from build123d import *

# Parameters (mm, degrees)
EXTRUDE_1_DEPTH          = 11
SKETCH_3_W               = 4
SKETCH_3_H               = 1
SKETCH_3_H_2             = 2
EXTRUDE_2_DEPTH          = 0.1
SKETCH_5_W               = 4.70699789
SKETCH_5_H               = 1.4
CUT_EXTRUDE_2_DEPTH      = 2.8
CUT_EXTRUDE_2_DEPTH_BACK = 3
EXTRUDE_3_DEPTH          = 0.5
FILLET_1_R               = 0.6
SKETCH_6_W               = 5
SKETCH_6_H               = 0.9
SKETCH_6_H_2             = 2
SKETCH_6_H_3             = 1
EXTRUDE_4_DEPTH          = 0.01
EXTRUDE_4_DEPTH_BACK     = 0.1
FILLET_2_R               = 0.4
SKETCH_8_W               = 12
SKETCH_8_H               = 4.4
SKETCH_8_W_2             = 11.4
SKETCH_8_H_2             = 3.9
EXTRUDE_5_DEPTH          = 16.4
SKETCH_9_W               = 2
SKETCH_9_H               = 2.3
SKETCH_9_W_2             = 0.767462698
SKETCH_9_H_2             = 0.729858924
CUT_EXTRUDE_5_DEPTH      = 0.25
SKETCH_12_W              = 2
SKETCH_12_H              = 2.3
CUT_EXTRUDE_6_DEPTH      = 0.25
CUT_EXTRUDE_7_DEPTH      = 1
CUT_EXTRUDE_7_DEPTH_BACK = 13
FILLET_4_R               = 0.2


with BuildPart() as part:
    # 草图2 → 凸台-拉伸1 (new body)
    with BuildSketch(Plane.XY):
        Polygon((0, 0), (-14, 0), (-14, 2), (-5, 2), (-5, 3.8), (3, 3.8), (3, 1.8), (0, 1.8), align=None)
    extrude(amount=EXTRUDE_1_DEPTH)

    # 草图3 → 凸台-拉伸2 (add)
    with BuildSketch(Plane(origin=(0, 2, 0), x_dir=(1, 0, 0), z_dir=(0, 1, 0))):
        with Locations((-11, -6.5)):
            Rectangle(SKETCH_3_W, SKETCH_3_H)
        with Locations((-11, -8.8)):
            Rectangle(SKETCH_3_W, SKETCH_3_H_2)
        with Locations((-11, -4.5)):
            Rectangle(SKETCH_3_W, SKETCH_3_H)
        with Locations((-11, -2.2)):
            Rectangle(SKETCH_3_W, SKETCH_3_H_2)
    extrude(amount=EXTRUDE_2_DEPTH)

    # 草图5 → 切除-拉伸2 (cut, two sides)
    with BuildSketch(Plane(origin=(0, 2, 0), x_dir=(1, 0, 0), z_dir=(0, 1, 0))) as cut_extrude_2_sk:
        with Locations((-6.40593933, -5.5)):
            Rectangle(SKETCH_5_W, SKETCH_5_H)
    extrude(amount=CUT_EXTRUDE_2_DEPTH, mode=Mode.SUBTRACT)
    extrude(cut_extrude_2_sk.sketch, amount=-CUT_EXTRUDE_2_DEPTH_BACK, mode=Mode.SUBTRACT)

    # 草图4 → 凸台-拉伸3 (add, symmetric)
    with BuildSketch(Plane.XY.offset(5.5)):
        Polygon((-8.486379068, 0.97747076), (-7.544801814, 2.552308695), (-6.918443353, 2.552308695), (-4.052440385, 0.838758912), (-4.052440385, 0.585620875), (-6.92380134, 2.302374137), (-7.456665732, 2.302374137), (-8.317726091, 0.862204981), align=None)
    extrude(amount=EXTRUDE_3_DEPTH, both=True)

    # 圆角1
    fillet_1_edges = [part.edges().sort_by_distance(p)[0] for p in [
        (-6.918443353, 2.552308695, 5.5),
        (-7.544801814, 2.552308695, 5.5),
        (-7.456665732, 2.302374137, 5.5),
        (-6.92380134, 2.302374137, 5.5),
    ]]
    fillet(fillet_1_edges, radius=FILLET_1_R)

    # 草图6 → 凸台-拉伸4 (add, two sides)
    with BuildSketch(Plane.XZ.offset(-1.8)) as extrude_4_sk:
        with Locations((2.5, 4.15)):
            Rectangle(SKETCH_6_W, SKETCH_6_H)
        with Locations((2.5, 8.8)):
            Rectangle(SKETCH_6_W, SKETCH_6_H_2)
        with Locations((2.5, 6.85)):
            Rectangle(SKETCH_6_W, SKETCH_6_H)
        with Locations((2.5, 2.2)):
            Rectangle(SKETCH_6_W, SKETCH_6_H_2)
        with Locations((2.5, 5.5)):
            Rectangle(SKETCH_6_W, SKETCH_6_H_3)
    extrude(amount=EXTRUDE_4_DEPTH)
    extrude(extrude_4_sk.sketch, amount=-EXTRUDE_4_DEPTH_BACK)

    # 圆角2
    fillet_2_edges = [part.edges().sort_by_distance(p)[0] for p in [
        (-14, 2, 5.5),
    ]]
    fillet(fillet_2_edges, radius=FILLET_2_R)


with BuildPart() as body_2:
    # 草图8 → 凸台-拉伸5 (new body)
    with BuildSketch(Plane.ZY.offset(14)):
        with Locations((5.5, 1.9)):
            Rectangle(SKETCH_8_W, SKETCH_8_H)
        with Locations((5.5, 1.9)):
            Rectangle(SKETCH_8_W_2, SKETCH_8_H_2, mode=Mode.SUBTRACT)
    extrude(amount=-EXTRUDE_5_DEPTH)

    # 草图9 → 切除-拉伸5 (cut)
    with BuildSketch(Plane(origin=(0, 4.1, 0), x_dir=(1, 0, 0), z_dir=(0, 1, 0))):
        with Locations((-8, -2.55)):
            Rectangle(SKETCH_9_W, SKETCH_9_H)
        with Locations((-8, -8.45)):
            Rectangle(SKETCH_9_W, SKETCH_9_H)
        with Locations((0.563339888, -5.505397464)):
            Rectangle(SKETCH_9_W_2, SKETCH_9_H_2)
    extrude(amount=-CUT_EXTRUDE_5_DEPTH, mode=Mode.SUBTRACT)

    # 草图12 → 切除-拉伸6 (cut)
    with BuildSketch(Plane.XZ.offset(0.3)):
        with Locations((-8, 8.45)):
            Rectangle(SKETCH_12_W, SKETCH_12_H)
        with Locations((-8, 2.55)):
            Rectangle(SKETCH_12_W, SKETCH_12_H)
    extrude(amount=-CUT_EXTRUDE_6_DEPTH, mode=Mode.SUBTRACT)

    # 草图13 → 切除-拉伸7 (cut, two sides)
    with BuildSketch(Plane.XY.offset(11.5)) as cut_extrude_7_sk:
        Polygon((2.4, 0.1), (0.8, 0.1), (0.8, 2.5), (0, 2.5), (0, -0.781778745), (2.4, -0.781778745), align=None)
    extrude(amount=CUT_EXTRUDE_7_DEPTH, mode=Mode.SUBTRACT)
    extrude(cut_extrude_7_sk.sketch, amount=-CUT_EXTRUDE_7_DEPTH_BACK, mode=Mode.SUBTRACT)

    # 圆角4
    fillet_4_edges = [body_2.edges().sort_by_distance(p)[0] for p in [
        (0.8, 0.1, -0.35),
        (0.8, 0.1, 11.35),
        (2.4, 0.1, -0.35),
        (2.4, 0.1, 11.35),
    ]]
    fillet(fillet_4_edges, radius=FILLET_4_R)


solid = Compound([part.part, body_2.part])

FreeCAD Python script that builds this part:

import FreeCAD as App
import Part
import Sketcher
from FreeCAD import Vector


def edges_at(feature, points):
    """Names of the edges that pass closest to the given points."""
    edges = feature.Shape.Edges
    near = lambda p: min(range(len(edges)), key=lambda i: edges[i].distToShape(Part.Vertex(*p))[0])
    return sorted({f"Edge{near(p) + 1}" for p in points})


def add_polygon(sketch, points):
    """Adds a closed chain of lines whose ends are joined by coincident constraints."""
    first, n = sketch.GeometryCount, len(points)
    for a, b in zip(points, points[1:] + points[:1]):
        sketch.addGeometry(Part.LineSegment(App.Vector(*a, 0), App.Vector(*b, 0)), False)
    for i in range(n):
        sketch.addConstraint(Sketcher.Constraint("Coincident", first + i, 2, first + (i + 1) % n, 1))

doc = App.newDocument("Part")
body = doc.addObject("PartDesign::Body", "Body")

# Sketch on XY plane
sketch1 = doc.addObject("Sketcher::SketchObject", "Sketch")
body.addObject(sketch1)
sketch1.AttachmentSupport = (doc.XY_Plane, [""])
sketch1.MapMode = "FlatFace"
add_polygon(sketch1, [(-14, 0), (0, 0), (0, 1.8), (3, 1.8), (3, 3.8), (-5, 3.8), (-5, 2), (-14, 2)])  # lines 0-7
sketch1.addConstraint(Sketcher.Constraint("Horizontal", 0))
sketch1.addConstraint(Sketcher.Constraint("Vertical", 1))
sketch1.addConstraint(Sketcher.Constraint("Horizontal", 2))
sketch1.addConstraint(Sketcher.Constraint("Vertical", 3))
sketch1.addConstraint(Sketcher.Constraint("Horizontal", 4))
sketch1.addConstraint(Sketcher.Constraint("Vertical", 5))
sketch1.addConstraint(Sketcher.Constraint("Horizontal", 6))
sketch1.addConstraint(Sketcher.Constraint("Vertical", 7))
sketch1.addConstraint(Sketcher.Constraint("Coincident", 0, 2, -1, 1))
sketch1.addConstraint(Sketcher.Constraint("Equal", 1, 5))
sketch1.addConstraint(Sketcher.Constraint("DistanceX", 0, 1, 0, 2, 14.0))
sketch1.addConstraint(Sketcher.Constraint("DistanceX", 2, 1, 2, 2, 3.0))
sketch1.addConstraint(Sketcher.Constraint("DistanceX", 4, 2, 4, 1, 8.0))
sketch1.addConstraint(Sketcher.Constraint("DistanceY", 3, 1, 3, 2, 2.0))
sketch1.addConstraint(Sketcher.Constraint("DistanceY", 1, 1, 1, 2, 1.8))
pad1 = doc.addObject("PartDesign::Pad", "Pad")
body.addObject(pad1)
pad1.Profile = sketch1
pad1.Length = 11

# Sketch on XZ plane
sketch2 = doc.addObject("Sketcher::SketchObject", "Sketch001")
body.addObject(sketch2)
sketch2.AttachmentSupport = (doc.XZ_Plane, [""])
sketch2.MapMode = "FlatFace"
sketch2.AttachmentOffset = App.Placement(Vector(0, 0, -2), App.Rotation())
add_polygon(sketch2, [(-13, 6), (-13, 7), (-9, 7), (-9, 6)])  # lines 0-3
add_polygon(sketch2, [(-13, 7.8), (-13, 9.8), (-9, 9.8), (-9, 7.8)])  # lines 4-7
add_polygon(sketch2, [(-13, 4), (-13, 5), (-9, 5), (-9, 4)])  # lines 8-11
add_polygon(sketch2, [(-13, 1.2), (-13, 3.2), (-9, 3.2), (-9, 1.2)])  # lines 12-15
sketch2.addConstraint(Sketcher.Constraint("Vertical", 0))
sketch2.addConstraint(Sketcher.Constraint("Horizontal", 1))
sketch2.addConstraint(Sketcher.Constraint("Vertical", 2))
sketch2.addConstraint(Sketcher.Constraint("Horizontal", 3))
sketch2.addConstraint(Sketcher.Constraint("Vertical", 4))
sketch2.addConstraint(Sketcher.Constraint("Horizontal", 5))
sketch2.addConstraint(Sketcher.Constraint("Vertical", 6))
sketch2.addConstraint(Sketcher.Constraint("Horizontal", 7))
sketch2.addConstraint(Sketcher.Constraint("Vertical", 8))
sketch2.addConstraint(Sketcher.Constraint("Horizontal", 9))
sketch2.addConstraint(Sketcher.Constraint("Vertical", 10))
sketch2.addConstraint(Sketcher.Constraint("Horizontal", 11))
sketch2.addConstraint(Sketcher.Constraint("Vertical", 12))
sketch2.addConstraint(Sketcher.Constraint("Horizontal", 13))
sketch2.addConstraint(Sketcher.Constraint("Vertical", 14))
sketch2.addConstraint(Sketcher.Constraint("Horizontal", 15))
sketch2.addConstraint(Sketcher.Constraint("Vertical", 3, 2, 4, 2))
sketch2.addConstraint(Sketcher.Constraint("Vertical", 2, 2, 5, 2))
sketch2.addConstraint(Sketcher.Constraint("Vertical", 7, 2, 8, 2))
sketch2.addConstraint(Sketcher.Constraint("Vertical", 6, 2, 9, 2))
sketch2.addConstraint(Sketcher.Constraint("Vertical", 11, 2, 12, 2))
sketch2.addConstraint(Sketcher.Constraint("Vertical", 10, 2, 13, 2))
sketch2.addConstraint(Sketcher.Constraint("Equal", 2, 8))
sketch2.addConstraint(Sketcher.Constraint("Equal", 6, 12))
sketch2.addConstraint(Sketcher.Constraint("DistanceX", 1, 1, 1, 2, 4.0))
sketch2.addConstraint(Sketcher.Constraint("DistanceY", 0, 1, 0, 2, 1.0))
sketch2.addConstraint(Sketcher.Constraint("DistanceY", 4, 1, 4, 2, 2.0))
sketch2.addConstraint(Sketcher.Constraint("DistanceX", 0, 2, -1, 1, 13.0))
sketch2.addConstraint(Sketcher.Constraint("DistanceY", -1, 1, 0, 2, 7.0))
sketch2.addConstraint(Sketcher.Constraint("DistanceY", -1, 1, 8, 2, 5.0))
sketch2.addConstraint(Sketcher.Constraint("DistanceY", -1, 1, 4, 2, 9.8))
sketch2.addConstraint(Sketcher.Constraint("DistanceY", -1, 1, 12, 2, 3.2))
pad2 = doc.addObject("PartDesign::Pad", "Pad001")
body.addObject(pad2)
pad2.Profile = sketch2
pad2.Length = 0.1
pad2.Reversed = True

# Sketch on XZ plane
sketch3 = doc.addObject("Sketcher::SketchObject", "Sketch002")
body.addObject(sketch3)
sketch3.AttachmentSupport = (doc.XZ_Plane, [""])
sketch3.MapMode = "FlatFace"
sketch3.AttachmentOffset = App.Placement(Vector(0, 0, -2), App.Rotation())
add_polygon(sketch3, [(-8.759438, 4.8), (-8.759438, 6.2), (-4.05244, 6.2), (-4.05244, 4.8)])  # lines 0-3
sketch3.addConstraint(Sketcher.Constraint("Vertical", 0))
sketch3.addConstraint(Sketcher.Constraint("Horizontal", 1))
sketch3.addConstraint(Sketcher.Constraint("Vertical", 2))
sketch3.addConstraint(Sketcher.Constraint("Horizontal", 3))
sketch3.addConstraint(Sketcher.Constraint("DistanceY", 0, 1, 0, 2, 1.4))
sketch3.addConstraint(Sketcher.Constraint("DistanceY", -1, 1, 0, 2, 6.2))
sketch3.addConstraint(Sketcher.Constraint("DistanceX", 1, 1, 1, 2, 4.706998))
sketch3.addConstraint(Sketcher.Constraint("DistanceX", 0, 2, -1, 1, 8.759438))
pocket1 = doc.addObject("PartDesign::Pocket", "Pocket")
body.addObject(pocket1)
pocket1.Profile = sketch3
pocket1.Type = "ThroughAll"
pocket1.Midplane = True

# Sketch on XY plane
sketch4 = doc.addObject("Sketcher::SketchObject", "Sketch003")
body.addObject(sketch4)
sketch4.AttachmentSupport = (doc.XY_Plane, [""])
sketch4.MapMode = "FlatFace"
sketch4.AttachmentOffset = App.Placement(Vector(0, 0, 5.5), App.Rotation())
add_polygon(sketch4, [(-7.544802, 2.552309), (-8.486379, 0.977471), (-8.317726, 0.862205), (-7.456666, 2.302374), (-6.923801, 2.302374), (-4.05244, 0.585621), (-4.05244, 0.838759), (-6.918443, 2.552309)])  # lines 0-7
sketch4.addConstraint(Sketcher.Constraint("Horizontal", 3))
sketch4.addConstraint(Sketcher.Constraint("Vertical", 5))
sketch4.addConstraint(Sketcher.Constraint("Horizontal", 7))
sketch4.addConstraint(Sketcher.Constraint("Parallel", 0, 2))
sketch4.addConstraint(Sketcher.Constraint("Perpendicular", 2, 4))
sketch4.addConstraint(Sketcher.Constraint("Parallel", 4, 6))
sketch4.addConstraint(Sketcher.Constraint("DistanceX", 7, 2, 3, 2, 0.621))
sketch4.addConstraint(Sketcher.Constraint("DistanceX", 7, 2, 7, 1, 0.626358))
sketch4.addConstraint(Sketcher.Constraint("DistanceY", 5, 1, 5, 2, 0.253138))
sketch4.addConstraint(Sketcher.Constraint("DistanceX", 3, 2, -1, 1, 6.923801))
sketch4.addConstraint(Sketcher.Constraint("Distance", 1, 0.204279))
sketch4.addConstraint(Sketcher.Constraint("Distance", 2, 1.677949))
sketch4.addConstraint(Sketcher.Constraint("Distance", 4, 3.345438))
sketch4.addConstraint(Sketcher.Constraint("DistanceX", 3, 1, 3, 2, 0.532864))
sketch4.addConstraint(Sketcher.Constraint("DistanceX", 0, 2, -1, 1, 8.486379))
sketch4.addConstraint(Sketcher.Constraint("DistanceY", -1, 1, 0, 2, 0.977471))
pad3 = doc.addObject("PartDesign::Pad", "Pad002")
body.addObject(pad3)
pad3.Profile = sketch4
pad3.Length = 1
pad3.Midplane = True
doc.recompute()

fillet = doc.addObject("PartDesign::Fillet", "Fillet")
body.addObject(fillet)
fillet.Base = (pad3, edges_at(pad3, [
    (-6.918, 2.552, 5.5),
    (-7.545, 2.552, 5.5),
    (-7.457, 2.302, 5.5),
    (-6.924, 2.302, 5.5),
]))
fillet.Radius = 0.6

# Sketch on XZ plane
sketch5 = doc.addObject("Sketcher::SketchObject", "Sketch004")
body.addObject(sketch5)
sketch5.AttachmentSupport = (doc.XZ_Plane, [""])
sketch5.MapMode = "FlatFace"
sketch5.AttachmentOffset = App.Placement(Vector(0, 0, -1.8), App.Rotation())
add_polygon(sketch5, [(0, 4.6), (0, 3.7), (5, 3.7), (5, 4.6)])  # lines 0-3
add_polygon(sketch5, [(0, 9.8), (0, 7.8), (5, 7.8), (5, 9.8)])  # lines 4-7
add_polygon(sketch5, [(0, 7.3), (0, 6.4), (5, 6.4), (5, 7.3)])  # lines 8-11
add_polygon(sketch5, [(0, 3.2), (0, 1.2), (5, 1.2), (5, 3.2)])  # lines 12-15
add_polygon(sketch5, [(0, 6), (0, 5), (5, 5), (5, 6)])  # lines 16-19
sketch5.addConstraint(Sketcher.Constraint("Vertical", 0))
sketch5.addConstraint(Sketcher.Constraint("Horizontal", 1))
sketch5.addConstraint(Sketcher.Constraint("Vertical", 2))
sketch5.addConstraint(Sketcher.Constraint("Horizontal", 3))
sketch5.addConstraint(Sketcher.Constraint("Vertical", 4))
sketch5.addConstraint(Sketcher.Constraint("Horizontal", 5))
sketch5.addConstraint(Sketcher.Constraint("Vertical", 6))
sketch5.addConstraint(Sketcher.Constraint("Horizontal", 7))
sketch5.addConstraint(Sketcher.Constraint("Vertical", 8))
sketch5.addConstraint(Sketcher.Constraint("Horizontal", 9))
sketch5.addConstraint(Sketcher.Constraint("Vertical", 10))
sketch5.addConstraint(Sketcher.Constraint("Horizontal", 11))
sketch5.addConstraint(Sketcher.Constraint("Vertical", 12))
sketch5.addConstraint(Sketcher.Constraint("Horizontal", 13))
sketch5.addConstraint(Sketcher.Constraint("Vertical", 14))
sketch5.addConstraint(Sketcher.Constraint("Horizontal", 15))
sketch5.addConstraint(Sketcher.Constraint("Vertical", 16))
sketch5.addConstraint(Sketcher.Constraint("Horizontal", 17))
sketch5.addConstraint(Sketcher.Constraint("Vertical", 18))
sketch5.addConstraint(Sketcher.Constraint("Horizontal", 19))
sketch5.addConstraint(Sketcher.Constraint("PointOnObject", 0, 2, -2))
sketch5.addConstraint(Sketcher.Constraint("PointOnObject", 4, 2, -2))
sketch5.addConstraint(Sketcher.Constraint("PointOnObject", 8, 2, -2))
sketch5.addConstraint(Sketcher.Constraint("PointOnObject", 12, 2, -2))
sketch5.addConstraint(Sketcher.Constraint("PointOnObject", 16, 2, -2))
sketch5.addConstraint(Sketcher.Constraint("Vertical", 2, 2, 5, 2))
sketch5.addConstraint(Sketcher.Constraint("Vertical", 6, 2, 9, 2))
sketch5.addConstraint(Sketcher.Constraint("Vertical", 10, 2, 13, 2))
sketch5.addConstraint(Sketcher.Constraint("Vertical", 14, 2, 17, 2))
sketch5.addConstraint(Sketcher.Constraint("Equal", 2, 8))
sketch5.addConstraint(Sketcher.Constraint("Equal", 6, 12))
sketch5.addConstraint(Sketcher.Constraint("DistanceX", 1, 1, 1, 2, 5.0))
sketch5.addConstraint(Sketcher.Constraint("DistanceY", 4, 2, 4, 1, 2.0))
sketch5.addConstraint(Sketcher.Constraint("DistanceY", 16, 2, 16, 1, 1.0))
sketch5.addConstraint(Sketcher.Constraint("DistanceY", 0, 2, 0, 1, 0.9))
sketch5.addConstraint(Sketcher.Constraint("DistanceY", -1, 1, 16, 2, 5.0))
sketch5.addConstraint(Sketcher.Constraint("DistanceY", -1, 1, 0, 2, 3.7))
sketch5.addConstraint(Sketcher.Constraint("DistanceY", -1, 1, 4, 2, 7.8))
sketch5.addConstraint(Sketcher.Constraint("DistanceY", -1, 1, 8, 2, 6.4))
sketch5.addConstraint(Sketcher.Constraint("DistanceY", -1, 1, 12, 2, 1.2))
pad4 = doc.addObject("PartDesign::Pad", "Pad003")
body.addObject(pad4)
pad4.Profile = sketch5
pad4.Type = "TwoLengths"
pad4.Length = 0.01
pad4.Length2 = 0.1
doc.recompute()

fillet2 = doc.addObject("PartDesign::Fillet", "Fillet001")
body.addObject(fillet2)
fillet2.Base = (pad4, edges_at(pad4, [(-14, 2, 5.5)]))
fillet2.Radius = 0.4
body2 = doc.addObject("PartDesign::Body", "Body001")

# Sketch on YZ plane
sketch6 = doc.addObject("Sketcher::SketchObject", "Sketch005")
body2.addObject(sketch6)
sketch6.AttachmentSupport = (doc.getObject("YZ_Plane001"), [""])
sketch6.MapMode = "FlatFace"
sketch6.AttachmentOffset = App.Placement(Vector(0, 0, -14), App.Rotation())
add_polygon(sketch6, [(4.1, -0.5), (-0.3, -0.5), (-0.3, 11.5), (4.1, 11.5)])  # lines 0-3
add_polygon(sketch6, [(-0.05, 11.2), (-0.05, -0.2), (3.85, -0.2), (3.85, 11.2)])  # lines 4-7
sketch6.addConstraint(Sketcher.Constraint("Horizontal", 0))
sketch6.addConstraint(Sketcher.Constraint("Vertical", 1))
sketch6.addConstraint(Sketcher.Constraint("Horizontal", 2))
sketch6.addConstraint(Sketcher.Constraint("Vertical", 3))
sketch6.addConstraint(Sketcher.Constraint("Vertical", 4))
sketch6.addConstraint(Sketcher.Constraint("Horizontal", 5))
sketch6.addConstraint(Sketcher.Constraint("Vertical", 6))
sketch6.addConstraint(Sketcher.Constraint("Horizontal", 7))
sketch6.addConstraint(Sketcher.Constraint("DistanceY", 1, 1, 1, 2, 12.0))
sketch6.addConstraint(Sketcher.Constraint("DistanceX", 0, 2, 0, 1, 4.4))
sketch6.addConstraint(Sketcher.Constraint("DistanceX", 5, 1, 5, 2, 3.9))
sketch6.addConstraint(Sketcher.Constraint("DistanceY", 4, 2, 4, 1, 11.4))
sketch6.addConstraint(Sketcher.Constraint("DistanceX", 0, 2, -1, 1, 0.3))
sketch6.addConstraint(Sketcher.Constraint("DistanceY", 0, 2, -1, 1, 0.5))
sketch6.addConstraint(Sketcher.Constraint("DistanceY", 4, 2, -1, 1, 0.2))
sketch6.addConstraint(Sketcher.Constraint("DistanceX", 4, 2, -1, 1, 0.05))
pad5 = doc.addObject("PartDesign::Pad", "Pad004")
body2.addObject(pad5)
pad5.Profile = sketch6
pad5.Length = 16.4

# Sketch on XZ plane
sketch7 = doc.addObject("Sketcher::SketchObject", "Sketch006")
body2.addObject(sketch7)
sketch7.AttachmentSupport = (doc.getObject("XZ_Plane001"), [""])
sketch7.MapMode = "FlatFace"
sketch7.AttachmentOffset = App.Placement(Vector(0, 0, -4.1), App.Rotation())
add_polygon(sketch7, [(-9, 1.4), (-9, 3.7), (-7, 3.7), (-7, 1.4)])  # lines 0-3
add_polygon(sketch7, [(-9, 7.3), (-9, 9.6), (-7, 9.6), (-7, 7.3)])  # lines 4-7
add_polygon(sketch7, [(0.179609, 5.140468), (0.179609, 5.870327), (0.947071, 5.870327), (0.947071, 5.140468)])  # lines 8-11
sketch7.addConstraint(Sketcher.Constraint("Vertical", 0))
sketch7.addConstraint(Sketcher.Constraint("Horizontal", 1))
sketch7.addConstraint(Sketcher.Constraint("Vertical", 2))
sketch7.addConstraint(Sketcher.Constraint("Horizontal", 3))
sketch7.addConstraint(Sketcher.Constraint("Vertical", 4))
sketch7.addConstraint(Sketcher.Constraint("Horizontal", 5))
sketch7.addConstraint(Sketcher.Constraint("Vertical", 6))
sketch7.addConstraint(Sketcher.Constraint("Horizontal", 7))
sketch7.addConstraint(Sketcher.Constraint("Vertical", 8))
sketch7.addConstraint(Sketcher.Constraint("Horizontal", 9))
sketch7.addConstraint(Sketcher.Constraint("Vertical", 10))
sketch7.addConstraint(Sketcher.Constraint("Horizontal", 11))
sketch7.addConstraint(Sketcher.Constraint("Vertical", 3, 2, 4, 2))
sketch7.addConstraint(Sketcher.Constraint("Vertical", 2, 2, 5, 2))
sketch7.addConstraint(Sketcher.Constraint("Equal", 2, 4))
sketch7.addConstraint(Sketcher.Constraint("DistanceX", 1, 1, 1, 2, 2.0))
sketch7.addConstraint(Sketcher.Constraint("DistanceY", 0, 1, 0, 2, 2.3))
sketch7.addConstraint(Sketcher.Constraint("DistanceX", 0, 2, -1, 1, 9.0))
sketch7.addConstraint(Sketcher.Constraint("DistanceY", -1, 1, 0, 2, 3.7))
sketch7.addConstraint(Sketcher.Constraint("DistanceY", -1, 1, 4, 2, 9.6))
sketch7.addConstraint(Sketcher.Constraint("DistanceY", 8, 1, 8, 2, 0.729859))
sketch7.addConstraint(Sketcher.Constraint("DistanceX", 9, 1, 9, 2, 0.767463))
sketch7.addConstraint(Sketcher.Constraint("DistanceX", -1, 1, 8, 2, 0.179609))
sketch7.addConstraint(Sketcher.Constraint("DistanceY", -1, 1, 10, 2, 5.140468))
pocket2 = doc.addObject("PartDesign::Pocket", "Pocket001")
body2.addObject(pocket2)
pocket2.Profile = sketch7
pocket2.Length = 0.25
pocket2.Reversed = True

# Sketch on XZ plane
sketch8 = doc.addObject("Sketcher::SketchObject", "Sketch007")
body2.addObject(sketch8)
sketch8.AttachmentSupport = (doc.getObject("XZ_Plane001"), [""])
sketch8.MapMode = "FlatFace"
sketch8.AttachmentOffset = App.Placement(Vector(0, 0, 0.3), App.Rotation())
add_polygon(sketch8, [(-9, 9.6), (-9, 7.3), (-7, 7.3), (-7, 9.6)])  # lines 0-3
add_polygon(sketch8, [(-9, 3.7), (-9, 1.4), (-7, 1.4), (-7, 3.7)])  # lines 4-7
sketch8.addConstraint(Sketcher.Constraint("Vertical", 0))
sketch8.addConstraint(Sketcher.Constraint("Horizontal", 1))
sketch8.addConstraint(Sketcher.Constraint("Vertical", 2))
sketch8.addConstraint(Sketcher.Constraint("Horizontal", 3))
sketch8.addConstraint(Sketcher.Constraint("Vertical", 4))
sketch8.addConstraint(Sketcher.Constraint("Horizontal", 5))
sketch8.addConstraint(Sketcher.Constraint("Vertical", 6))
sketch8.addConstraint(Sketcher.Constraint("Horizontal", 7))
sketch8.addConstraint(Sketcher.Constraint("Vertical", 3, 2, 4, 2))
sketch8.addConstraint(Sketcher.Constraint("Vertical", 2, 2, 5, 2))
sketch8.addConstraint(Sketcher.Constraint("Equal", 2, 4))
sketch8.addConstraint(Sketcher.Constraint("DistanceX", 1, 1, 1, 2, 2.0))
sketch8.addConstraint(Sketcher.Constraint("DistanceY", 0, 2, 0, 1, 2.3))
sketch8.addConstraint(Sketcher.Constraint("DistanceX", 0, 2, -1, 1, 9.0))
sketch8.addConstraint(Sketcher.Constraint("DistanceY", -1, 1, 0, 2, 7.3))
sketch8.addConstraint(Sketcher.Constraint("DistanceY", -1, 1, 4, 2, 1.4))
pocket3 = doc.addObject("PartDesign::Pocket", "Pocket002")
body2.addObject(pocket3)
pocket3.Profile = sketch8
pocket3.Length = 0.25

# Sketch on XY plane
sketch9 = doc.addObject("Sketcher::SketchObject", "Sketch008")
body2.addObject(sketch9)
sketch9.AttachmentSupport = (doc.getObject("XY_Plane001"), [""])
sketch9.MapMode = "FlatFace"
sketch9.AttachmentOffset = App.Placement(Vector(0, 0, 11.5), App.Rotation())
add_polygon(sketch9, [(2.4, 0.1), (0.8, 0.1), (0.8, 2.5), (0, 2.5), (0, -0.781779), (2.4, -0.781779)])  # lines 0-5
sketch9.addConstraint(Sketcher.Constraint("Horizontal", 0))
sketch9.addConstraint(Sketcher.Constraint("Vertical", 1))
sketch9.addConstraint(Sketcher.Constraint("Horizontal", 2))
sketch9.addConstraint(Sketcher.Constraint("Vertical", 3))
sketch9.addConstraint(Sketcher.Constraint("Horizontal", 4))
sketch9.addConstraint(Sketcher.Constraint("Vertical", 5))
sketch9.addConstraint(Sketcher.Constraint("PointOnObject", 2, 2, -2))
sketch9.addConstraint(Sketcher.Constraint("Equal", 4, 1))
sketch9.addConstraint(Sketcher.Constraint("DistanceX", 0, 2, 0, 1, 1.6))
sketch9.addConstraint(Sketcher.Constraint("DistanceX", 2, 2, 2, 1, 0.8))
sketch9.addConstraint(Sketcher.Constraint("DistanceY", -1, 1, 0, 2, 0.1))
sketch9.addConstraint(Sketcher.Constraint("DistanceY", 3, 2, 3, 1, 3.281779))
pocket4 = doc.addObject("PartDesign::Pocket", "Pocket003")
body2.addObject(pocket4)
pocket4.Profile = sketch9
pocket4.Type = "ThroughAll"
pocket4.Midplane = True
doc.recompute()

fillet3 = doc.addObject("PartDesign::Fillet", "Fillet002")
body2.addObject(fillet3)
fillet3.Base = (pocket4, edges_at(pocket4, [
    (0.8, 0.1, -0.35),
    (0.8, 0.1, 11.35),
    (2.4, 0.1, -0.35),
    (2.4, 0.1, 11.35),
]))
fillet3.Radius = 0.2

doc.recompute()
